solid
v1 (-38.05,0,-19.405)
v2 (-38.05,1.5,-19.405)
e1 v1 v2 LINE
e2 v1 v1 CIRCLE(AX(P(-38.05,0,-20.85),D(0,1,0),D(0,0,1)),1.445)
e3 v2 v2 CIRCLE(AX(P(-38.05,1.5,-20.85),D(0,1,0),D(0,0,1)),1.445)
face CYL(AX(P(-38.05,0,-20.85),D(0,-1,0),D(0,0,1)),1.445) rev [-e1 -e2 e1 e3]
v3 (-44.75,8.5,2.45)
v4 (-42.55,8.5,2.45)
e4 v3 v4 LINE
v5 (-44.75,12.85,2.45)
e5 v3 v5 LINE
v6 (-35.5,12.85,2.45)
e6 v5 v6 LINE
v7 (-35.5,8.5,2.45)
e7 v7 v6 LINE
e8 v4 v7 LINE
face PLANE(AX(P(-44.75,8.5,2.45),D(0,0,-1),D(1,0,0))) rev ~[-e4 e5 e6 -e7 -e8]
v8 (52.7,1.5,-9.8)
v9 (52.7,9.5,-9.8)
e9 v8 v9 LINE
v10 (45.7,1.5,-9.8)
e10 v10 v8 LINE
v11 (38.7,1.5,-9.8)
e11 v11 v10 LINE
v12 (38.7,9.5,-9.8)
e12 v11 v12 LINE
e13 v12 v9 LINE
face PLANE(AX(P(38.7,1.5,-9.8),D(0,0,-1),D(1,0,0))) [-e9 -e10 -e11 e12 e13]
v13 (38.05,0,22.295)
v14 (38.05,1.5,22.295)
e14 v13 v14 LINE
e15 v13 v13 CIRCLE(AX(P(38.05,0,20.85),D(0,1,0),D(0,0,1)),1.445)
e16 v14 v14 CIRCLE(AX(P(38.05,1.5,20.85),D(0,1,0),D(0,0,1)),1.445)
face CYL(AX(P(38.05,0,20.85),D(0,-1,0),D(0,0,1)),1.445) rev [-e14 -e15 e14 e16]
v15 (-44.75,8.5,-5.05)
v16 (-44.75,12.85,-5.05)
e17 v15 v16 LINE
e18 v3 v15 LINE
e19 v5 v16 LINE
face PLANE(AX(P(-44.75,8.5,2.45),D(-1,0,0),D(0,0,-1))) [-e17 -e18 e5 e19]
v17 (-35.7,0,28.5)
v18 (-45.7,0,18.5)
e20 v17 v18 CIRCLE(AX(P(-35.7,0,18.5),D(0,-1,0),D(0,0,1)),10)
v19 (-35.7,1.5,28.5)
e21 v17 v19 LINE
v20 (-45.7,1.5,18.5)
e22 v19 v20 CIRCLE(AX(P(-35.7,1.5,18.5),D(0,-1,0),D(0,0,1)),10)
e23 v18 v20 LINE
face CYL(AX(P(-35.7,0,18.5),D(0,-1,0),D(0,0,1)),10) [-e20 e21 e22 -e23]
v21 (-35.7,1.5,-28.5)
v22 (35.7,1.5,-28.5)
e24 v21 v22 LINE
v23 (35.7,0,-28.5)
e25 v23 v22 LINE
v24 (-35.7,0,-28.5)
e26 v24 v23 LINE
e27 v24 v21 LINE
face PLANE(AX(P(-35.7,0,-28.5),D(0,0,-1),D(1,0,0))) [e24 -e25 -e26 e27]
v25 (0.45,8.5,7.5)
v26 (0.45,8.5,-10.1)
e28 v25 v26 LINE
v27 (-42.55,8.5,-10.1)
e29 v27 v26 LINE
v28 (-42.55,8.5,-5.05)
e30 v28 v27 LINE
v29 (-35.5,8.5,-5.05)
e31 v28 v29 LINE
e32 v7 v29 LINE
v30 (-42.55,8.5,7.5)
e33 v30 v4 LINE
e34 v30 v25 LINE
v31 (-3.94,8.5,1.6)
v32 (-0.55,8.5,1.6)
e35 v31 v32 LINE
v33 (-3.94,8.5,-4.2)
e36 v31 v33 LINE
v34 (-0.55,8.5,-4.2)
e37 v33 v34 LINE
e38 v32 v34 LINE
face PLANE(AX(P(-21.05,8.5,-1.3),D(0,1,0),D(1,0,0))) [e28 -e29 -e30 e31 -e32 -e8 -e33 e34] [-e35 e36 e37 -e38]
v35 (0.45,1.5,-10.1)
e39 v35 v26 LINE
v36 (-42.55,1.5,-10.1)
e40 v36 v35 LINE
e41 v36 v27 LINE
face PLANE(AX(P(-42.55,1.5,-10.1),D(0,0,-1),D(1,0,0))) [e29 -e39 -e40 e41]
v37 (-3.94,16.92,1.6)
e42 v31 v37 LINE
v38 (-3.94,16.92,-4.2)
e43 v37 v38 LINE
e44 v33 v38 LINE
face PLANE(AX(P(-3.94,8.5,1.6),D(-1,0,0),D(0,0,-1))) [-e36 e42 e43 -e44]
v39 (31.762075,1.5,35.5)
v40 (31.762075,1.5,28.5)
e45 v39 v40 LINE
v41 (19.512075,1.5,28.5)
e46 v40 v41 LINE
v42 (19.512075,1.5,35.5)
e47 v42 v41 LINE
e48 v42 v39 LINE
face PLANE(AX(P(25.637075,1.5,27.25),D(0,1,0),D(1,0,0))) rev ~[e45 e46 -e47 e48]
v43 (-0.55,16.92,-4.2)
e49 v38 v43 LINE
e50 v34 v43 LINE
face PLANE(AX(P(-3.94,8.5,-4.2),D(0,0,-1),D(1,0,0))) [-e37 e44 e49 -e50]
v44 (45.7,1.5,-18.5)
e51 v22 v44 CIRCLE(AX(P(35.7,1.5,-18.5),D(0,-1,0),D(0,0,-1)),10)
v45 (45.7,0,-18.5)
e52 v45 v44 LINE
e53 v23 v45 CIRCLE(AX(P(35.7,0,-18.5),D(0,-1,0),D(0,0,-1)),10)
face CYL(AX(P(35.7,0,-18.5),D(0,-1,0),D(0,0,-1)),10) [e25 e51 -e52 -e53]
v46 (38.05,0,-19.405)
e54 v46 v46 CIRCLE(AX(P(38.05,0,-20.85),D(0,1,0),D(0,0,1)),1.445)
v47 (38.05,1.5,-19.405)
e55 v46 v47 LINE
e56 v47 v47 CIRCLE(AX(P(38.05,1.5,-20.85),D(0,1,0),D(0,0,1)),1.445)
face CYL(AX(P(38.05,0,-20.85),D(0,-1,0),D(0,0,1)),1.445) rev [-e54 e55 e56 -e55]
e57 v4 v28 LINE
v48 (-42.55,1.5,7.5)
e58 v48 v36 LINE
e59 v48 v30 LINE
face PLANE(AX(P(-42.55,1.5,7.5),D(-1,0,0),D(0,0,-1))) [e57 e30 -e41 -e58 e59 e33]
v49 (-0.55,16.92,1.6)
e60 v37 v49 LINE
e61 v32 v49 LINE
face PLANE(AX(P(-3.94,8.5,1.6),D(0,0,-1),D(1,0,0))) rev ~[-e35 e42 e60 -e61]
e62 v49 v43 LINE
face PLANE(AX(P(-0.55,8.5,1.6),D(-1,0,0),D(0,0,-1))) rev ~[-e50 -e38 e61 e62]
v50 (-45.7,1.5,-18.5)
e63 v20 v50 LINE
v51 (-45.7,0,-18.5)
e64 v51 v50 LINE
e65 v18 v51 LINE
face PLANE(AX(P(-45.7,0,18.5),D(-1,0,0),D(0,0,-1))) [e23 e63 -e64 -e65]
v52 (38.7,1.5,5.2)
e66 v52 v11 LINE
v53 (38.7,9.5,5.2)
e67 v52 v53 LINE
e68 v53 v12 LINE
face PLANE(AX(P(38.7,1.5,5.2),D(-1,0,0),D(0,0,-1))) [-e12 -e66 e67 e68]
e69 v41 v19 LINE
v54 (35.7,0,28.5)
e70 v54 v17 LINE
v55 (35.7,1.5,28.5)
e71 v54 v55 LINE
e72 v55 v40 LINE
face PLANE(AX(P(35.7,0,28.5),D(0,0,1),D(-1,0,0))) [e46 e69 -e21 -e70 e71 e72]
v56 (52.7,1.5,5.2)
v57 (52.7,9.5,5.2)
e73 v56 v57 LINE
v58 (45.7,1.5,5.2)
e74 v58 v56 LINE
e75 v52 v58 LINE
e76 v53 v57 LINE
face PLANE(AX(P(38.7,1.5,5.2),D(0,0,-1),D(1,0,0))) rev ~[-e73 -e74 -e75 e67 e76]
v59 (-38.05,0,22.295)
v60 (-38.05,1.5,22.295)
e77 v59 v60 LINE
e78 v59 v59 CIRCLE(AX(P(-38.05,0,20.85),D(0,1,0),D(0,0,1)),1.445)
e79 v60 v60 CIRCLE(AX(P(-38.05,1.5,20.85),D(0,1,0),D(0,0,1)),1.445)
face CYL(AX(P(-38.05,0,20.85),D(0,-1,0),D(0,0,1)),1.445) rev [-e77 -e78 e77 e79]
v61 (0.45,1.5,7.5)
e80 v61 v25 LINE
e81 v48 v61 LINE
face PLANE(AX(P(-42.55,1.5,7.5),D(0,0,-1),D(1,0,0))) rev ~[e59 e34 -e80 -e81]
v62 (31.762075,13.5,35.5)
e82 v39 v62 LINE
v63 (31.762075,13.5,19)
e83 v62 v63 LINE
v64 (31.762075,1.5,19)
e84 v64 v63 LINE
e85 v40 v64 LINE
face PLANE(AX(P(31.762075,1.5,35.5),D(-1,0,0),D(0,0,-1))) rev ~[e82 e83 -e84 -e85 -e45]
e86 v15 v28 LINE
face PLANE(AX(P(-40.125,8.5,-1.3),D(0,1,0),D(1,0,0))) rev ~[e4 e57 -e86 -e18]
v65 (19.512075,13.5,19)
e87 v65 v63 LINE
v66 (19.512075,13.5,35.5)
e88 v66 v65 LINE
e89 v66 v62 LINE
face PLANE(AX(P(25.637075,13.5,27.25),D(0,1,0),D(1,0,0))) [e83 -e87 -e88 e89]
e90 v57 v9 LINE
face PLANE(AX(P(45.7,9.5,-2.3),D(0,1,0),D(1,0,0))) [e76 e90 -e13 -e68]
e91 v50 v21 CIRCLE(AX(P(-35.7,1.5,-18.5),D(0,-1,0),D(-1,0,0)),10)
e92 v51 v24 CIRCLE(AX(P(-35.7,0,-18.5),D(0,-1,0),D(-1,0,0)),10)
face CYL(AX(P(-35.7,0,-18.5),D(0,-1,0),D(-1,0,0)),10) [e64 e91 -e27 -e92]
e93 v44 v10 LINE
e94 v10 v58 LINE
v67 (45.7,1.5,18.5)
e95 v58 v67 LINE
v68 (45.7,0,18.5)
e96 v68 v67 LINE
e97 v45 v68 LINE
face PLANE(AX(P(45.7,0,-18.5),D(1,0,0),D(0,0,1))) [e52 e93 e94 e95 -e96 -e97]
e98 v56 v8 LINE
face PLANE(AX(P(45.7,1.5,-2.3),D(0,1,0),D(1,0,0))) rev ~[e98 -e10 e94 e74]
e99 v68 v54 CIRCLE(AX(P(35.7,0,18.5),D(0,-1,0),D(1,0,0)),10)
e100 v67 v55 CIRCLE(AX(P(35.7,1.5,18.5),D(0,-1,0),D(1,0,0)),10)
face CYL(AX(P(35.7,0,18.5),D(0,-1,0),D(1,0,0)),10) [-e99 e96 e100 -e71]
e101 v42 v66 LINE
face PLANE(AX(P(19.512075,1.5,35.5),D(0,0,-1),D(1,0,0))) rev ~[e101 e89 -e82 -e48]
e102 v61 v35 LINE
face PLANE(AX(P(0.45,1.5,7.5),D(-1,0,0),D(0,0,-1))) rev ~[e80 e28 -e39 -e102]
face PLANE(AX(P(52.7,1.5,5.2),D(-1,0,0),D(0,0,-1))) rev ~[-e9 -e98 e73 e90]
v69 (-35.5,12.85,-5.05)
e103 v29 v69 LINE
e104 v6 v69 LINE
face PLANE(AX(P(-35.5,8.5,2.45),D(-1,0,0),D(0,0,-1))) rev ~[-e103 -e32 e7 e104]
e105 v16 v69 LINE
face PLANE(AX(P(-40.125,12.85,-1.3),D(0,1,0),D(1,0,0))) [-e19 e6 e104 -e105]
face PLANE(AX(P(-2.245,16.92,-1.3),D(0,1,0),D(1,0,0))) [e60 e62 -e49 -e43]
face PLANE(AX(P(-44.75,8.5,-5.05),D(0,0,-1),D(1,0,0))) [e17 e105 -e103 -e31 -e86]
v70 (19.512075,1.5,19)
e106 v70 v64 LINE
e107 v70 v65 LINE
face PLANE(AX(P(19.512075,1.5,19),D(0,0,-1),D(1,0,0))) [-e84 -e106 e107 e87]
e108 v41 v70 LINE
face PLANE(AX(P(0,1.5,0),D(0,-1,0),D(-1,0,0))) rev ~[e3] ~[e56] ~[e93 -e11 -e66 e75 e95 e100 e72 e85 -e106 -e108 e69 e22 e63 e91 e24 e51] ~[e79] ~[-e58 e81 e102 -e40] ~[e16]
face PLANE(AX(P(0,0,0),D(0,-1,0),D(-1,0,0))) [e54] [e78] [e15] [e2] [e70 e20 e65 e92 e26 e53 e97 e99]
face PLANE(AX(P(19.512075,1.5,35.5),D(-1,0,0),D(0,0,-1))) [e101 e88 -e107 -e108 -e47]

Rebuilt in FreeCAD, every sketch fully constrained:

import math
import FreeCAD as App
import Part
import Sketcher
from FreeCAD import Vector
Q = App.Units.Quantity

doc = App.newDocument("Part")
body = doc.addObject("PartDesign::Body", "Body")

# Sketch on XZ plane
sketch1 = body.newObject("Sketcher::SketchObject", "Sketch")
sketch1.AttachmentSupport = (doc.getObject("XZ_Plane"), [""])
sketch1.MapMode = "FlatFace"
sketch1.addGeometry(Part.LineSegment(Vector(35.7, -28.5, 0), Vector(-35.7, -28.5, 0)), False)
sketch1.addGeometry(Part.ArcOfCircle(Part.Circle(Vector(-35.7, -18.5, 0), Vector(0, 0, 1), 10), math.radians(180), math.radians(270)), False)
sketch1.addGeometry(Part.LineSegment(Vector(-45.7, -18.5, 0), Vector(-45.7, 18.5, 0)), False)
sketch1.addGeometry(Part.ArcOfCircle(Part.Circle(Vector(-35.7, 18.5, 0), Vector(0, 0, 1), 10), math.radians(90), math.radians(180)), False)
sketch1.addGeometry(Part.LineSegment(Vector(-35.7, 28.5, 0), Vector(35.7, 28.5, 0)), False)
sketch1.addGeometry(Part.ArcOfCircle(Part.Circle(Vector(35.7, 18.5, 0), Vector(0, 0, 1), 10), math.radians(0), math.radians(90)), False)
sketch1.addGeometry(Part.LineSegment(Vector(45.7, 18.5, 0), Vector(45.7, -18.5, 0)), False)
sketch1.addGeometry(Part.ArcOfCircle(Part.Circle(Vector(35.7, -18.5, 0), Vector(0, 0, 1), 10), math.radians(-90), math.radians(0)), False)
sketch1.addGeometry(Part.Circle(Vector(38.05, 20.85, 0), Vector(0, 0, 1), 1.445), False)
sketch1.addGeometry(Part.Circle(Vector(-38.05, 20.85, 0), Vector(0, 0, 1), 1.445), False)
sketch1.addGeometry(Part.Circle(Vector(38.05, -20.85, 0), Vector(0, 0, 1), 1.445), False)
sketch1.addGeometry(Part.Circle(Vector(-38.05, -20.85, 0), Vector(0, 0, 1), 1.445), False)
sketch1.addConstraint(Sketcher.Constraint("Tangent", 0, 2, 1, 2))
sketch1.addConstraint(Sketcher.Constraint("Tangent", 1, 1, 2, 1))
sketch1.addConstraint(Sketcher.Constraint("Tangent", 2, 2, 3, 2))
sketch1.addConstraint(Sketcher.Constraint("Tangent", 3, 1, 4, 1))
sketch1.addConstraint(Sketcher.Constraint("Tangent", 4, 2, 5, 2))
sketch1.addConstraint(Sketcher.Constraint("Tangent", 5, 1, 6, 1))
sketch1.addConstraint(Sketcher.Constraint("Tangent", 6, 2, 7, 2))
sketch1.addConstraint(Sketcher.Constraint("Tangent", 7, 1, 0, 1))
sketch1.addConstraint(Sketcher.Constraint("Horizontal", 0))
sketch1.addConstraint(Sketcher.Constraint("Vertical", 2))
sketch1.addConstraint(Sketcher.Constraint("Horizontal", 4))
sketch1.addConstraint(Sketcher.Constraint("Vertical", 6))
sketch1.addConstraint(Sketcher.Constraint("Equal", 1, 3))
sketch1.addConstraint(Sketcher.Constraint("Equal", 3, 5))
sketch1.addConstraint(Sketcher.Constraint("Equal", 5, 7))
sketch1.addConstraint(Sketcher.Constraint("Equal", 8, 9))
sketch1.addConstraint(Sketcher.Constraint("Equal", 9, 10))
sketch1.addConstraint(Sketcher.Constraint("Equal", 10, 11))
sketch1.addConstraint(Sketcher.Constraint("Symmetric", 1, 3, 5, 3, -1, 1))
sketch1.addConstraint(Sketcher.Constraint("Symmetric", 9, 3, 10, 3, -1, 1))
sketch1.addConstraint(Sketcher.Constraint("Symmetric", 8, 3, 11, 3, -1, 1))
sketch1.addConstraint(Sketcher.Constraint("Symmetric", 8, 3, 9, 3, -2))
sketch1.addConstraint(Sketcher.Constraint("Radius", 1, Q("10 mm")))
sketch1.addConstraint(Sketcher.Constraint("Diameter", 8, Q("2.89 mm")))
sketch1.addConstraint(Sketcher.Constraint("DistanceY", 2, 1, 2, 2, Q("37 mm")))
sketch1.addConstraint(Sketcher.Constraint("DistanceX", 0, 2, 0, 1, Q("71.4 mm")))
sketch1.addConstraint(Sketcher.Constraint("DistanceX", 9, 3, 8, 3, Q("76.1 mm")))
sketch1.addConstraint(Sketcher.Constraint("DistanceY", 10, 3, 8, 3, Q("41.7 mm")))
pad1 = body.newObject("PartDesign::Pad", "Pad")
pad1.Profile = sketch1
pad1.Length = 1.5
pad1.Reversed = True

# Sketch on XZ plane
sketch2 = body.newObject("Sketcher::SketchObject", "Sketch001")
sketch2.AttachmentSupport = (doc.getObject("XZ_Plane"), [""])
sketch2.MapMode = "FlatFace"
sketch2.AttachmentOffset = App.Placement(Vector(0, 0, -1.5), App.Rotation())
sketch2.addGeometry(Part.LineSegment(Vector(-42.55, -10.1, 0), Vector(-42.55, 7.5, 0)), False)
sketch2.addGeometry(Part.LineSegment(Vector(-42.55, 7.5, 0), Vector(0.45, 7.5, 0)), False)
sketch2.addGeometry(Part.LineSegment(Vector(0.45, 7.5, 0), Vector(0.45, -10.1, 0)), False)
sketch2.addGeometry(Part.LineSegment(Vector(0.45, -10.1, 0), Vector(-42.55, -10.1, 0)), False)
sketch2.addConstraint(Sketcher.Constraint("Coincident", 0, 2, 1, 1))
sketch2.addConstraint(Sketcher.Constraint("Coincident", 1, 2, 2, 1))
sketch2.addConstraint(Sketcher.Constraint("Coincident", 2, 2, 3, 1))
sketch2.addConstraint(Sketcher.Constraint("Coincident", 3, 2, 0, 1))
sketch2.addConstraint(Sketcher.Constraint("Vertical", 0))
sketch2.addConstraint(Sketcher.Constraint("Horizontal", 1))
sketch2.addConstraint(Sketcher.Constraint("Vertical", 2))
sketch2.addConstraint(Sketcher.Constraint("Horizontal", 3))
sketch2.addConstraint(Sketcher.Constraint("DistanceX", 1, 1, 1, 2, Q("43 mm")))
sketch2.addConstraint(Sketcher.Constraint("DistanceY", 0, 1, 0, 2, Q("17.6 mm")))
sketch2.addConstraint(Sketcher.Constraint("DistanceY", -1, 1, 0, 2, Q("7.5 mm")))
sketch2.addConstraint(Sketcher.Constraint("DistanceX", 0, 2, -1, 1, Q("42.55 mm")))
pad2 = body.newObject("PartDesign::Pad", "Pad001")
pad2.Profile = sketch2
pad2.Length = 7
pad2.Reversed = True

# Sketch on XZ plane
sketch3 = body.newObject("Sketcher::SketchObject", "Sketch002")
sketch3.AttachmentSupport = (doc.getObject("XZ_Plane"), [""])
sketch3.MapMode = "FlatFace"
sketch3.AttachmentOffset = App.Placement(Vector(0, 0, -8.5), App.Rotation())
sketch3.addGeometry(Part.LineSegment(Vector(-44.75, -5.05, 0), Vector(-44.75, 2.45, 0)), False)
sketch3.addGeometry(Part.LineSegment(Vector(-44.75, 2.45, 0), Vector(-35.5, 2.45, 0)), False)
sketch3.addGeometry(Part.LineSegment(Vector(-35.5, 2.45, 0), Vector(-35.5, -5.05, 0)), False)
sketch3.addGeometry(Part.LineSegment(Vector(-35.5, -5.05, 0), Vector(-44.75, -5.05, 0)), False)
sketch3.addConstraint(Sketcher.Constraint("Coincident", 0, 2, 1, 1))
sketch3.addConstraint(Sketcher.Constraint("Coincident", 1, 2, 2, 1))
sketch3.addConstraint(Sketcher.Constraint("Coincident", 2, 2, 3, 1))
sketch3.addConstraint(Sketcher.Constraint("Coincident", 3, 2, 0, 1))
sketch3.addConstraint(Sketcher.Constraint("Vertical", 0))
sketch3.addConstraint(Sketcher.Constraint("Horizontal", 1))
sketch3.addConstraint(Sketcher.Constraint("Vertical", 2))
sketch3.addConstraint(Sketcher.Constraint("Horizontal", 3))
sketch3.addConstraint(Sketcher.Constraint("DistanceY", 0, 1, 0, 2, Q("7.5 mm")))
sketch3.addConstraint(Sketcher.Constraint("DistanceX", 1, 1, 1, 2, Q("9.25 mm")))
sketch3.addConstraint(Sketcher.Constraint("DistanceX", 1, 2, -1, 1, Q("35.5 mm")))
sketch3.addConstraint(Sketcher.Constraint("DistanceY", -1, 1, 0, 2, Q("2.45 mm")))
pad3 = body.newObject("PartDesign::Pad", "Pad002")
pad3.Profile = sketch3
pad3.Length = 4.35
pad3.Reversed = True

# Sketch on XZ plane
sketch4 = body.newObject("Sketcher::SketchObject", "Sketch003")
sketch4.AttachmentSupport = (doc.getObject("XZ_Plane"), [""])
sketch4.MapMode = "FlatFace"
sketch4.AttachmentOffset = App.Placement(Vector(0, 0, -8.5), App.Rotation())
sketch4.addGeometry(Part.LineSegment(Vector(-3.94, -4.2, 0), Vector(-3.94, 1.6, 0)), False)
sketch4.addGeometry(Part.LineSegment(Vector(-3.94, 1.6, 0), Vector(-0.55, 1.6, 0)), False)
sketch4.addGeometry(Part.LineSegment(Vector(-0.55, 1.6, 0), Vector(-0.55, -4.2, 0)), False)
sketch4.addGeometry(Part.LineSegment(Vector(-0.55, -4.2, 0), Vector(-3.94, -4.2, 0)), False)
sketch4.addConstraint(Sketcher.Constraint("Coincident", 0, 2, 1, 1))
sketch4.addConstraint(Sketcher.Constraint("Coincident", 1, 2, 2, 1))
sketch4.addConstraint(Sketcher.Constraint("Coincident", 2, 2, 3, 1))
sketch4.addConstraint(Sketcher.Constraint("Coincident", 3, 2, 0, 1))
sketch4.addConstraint(Sketcher.Constraint("Vertical", 0))
sketch4.addConstraint(Sketcher.Constraint("Horizontal", 1))
sketch4.addConstraint(Sketcher.Constraint("Vertical", 2))
sketch4.addConstraint(Sketcher.Constraint("Horizontal", 3))
sketch4.addConstraint(Sketcher.Constraint("DistanceY", 0, 1, 0, 2, Q("5.8 mm")))
sketch4.addConstraint(Sketcher.Constraint("DistanceX", 1, 1, 1, 2, Q("3.39 mm")))
sketch4.addConstraint(Sketcher.Constraint("DistanceY", -1, 1, 0, 2, Q("1.6 mm")))
sketch4.addConstraint(Sketcher.Constraint("DistanceX", 0, 2, -1, 1, Q("3.94 mm")))
pad4 = body.newObject("PartDesign::Pad", "Pad003")
pad4.Profile = sketch4
pad4.Length = 8.42
pad4.Reversed = True

# Sketch on XZ plane
sketch5 = body.newObject("Sketcher::SketchObject", "Sketch004")
sketch5.AttachmentSupport = (doc.getObject("XZ_Plane"), [""])
sketch5.MapMode = "FlatFace"
sketch5.AttachmentOffset = App.Placement(Vector(0, 0, -1.5), App.Rotation())
sketch5.addGeometry(Part.LineSegment(Vector(38.7, -9.8, 0), Vector(38.7, 5.2, 0)), False)
sketch5.addGeometry(Part.LineSegment(Vector(38.7, 5.2, 0), Vector(52.7, 5.2, 0)), False)
sketch5.addGeometry(Part.LineSegment(Vector(52.7, 5.2, 0), Vector(52.7, -9.8, 0)), False)
sketch5.addGeometry(Part.LineSegment(Vector(52.7, -9.8, 0), Vector(38.7, -9.8, 0)), False)
sketch5.addConstraint(Sketcher.Constraint("Coincident", 0, 2, 1, 1))
sketch5.addConstraint(Sketcher.Constraint("Coincident", 1, 2, 2, 1))
sketch5.addConstraint(Sketcher.Constraint("Coincident", 2, 2, 3, 1))
sketch5.addConstraint(Sketcher.Constraint("Coincident", 3, 2, 0, 1))
sketch5.addConstraint(Sketcher.Constraint("Vertical", 0))
sketch5.addConstraint(Sketcher.Constraint("Horizontal", 1))
sketch5.addConstraint(Sketcher.Constraint("Vertical", 2))
sketch5.addConstraint(Sketcher.Constraint("Horizontal", 3))
sketch5.addConstraint(Sketcher.Constraint("DistanceX", 1, 1, 1, 2, Q("14 mm")))
sketch5.addConstraint(Sketcher.Constraint("DistanceY", 0, 1, 0, 2, Q("15 mm")))
sketch5.addConstraint(Sketcher.Constraint("DistanceX", -1, 1, 0, 2, Q("38.7 mm")))
sketch5.addConstraint(Sketcher.Constraint("DistanceY", -1, 1, 0, 2, Q("5.2 mm")))
pad5 = body.newObject("PartDesign::Pad", "Pad004")
pad5.Profile = sketch5
pad5.Length = 8
pad5.Reversed = True

# Sketch on XZ plane
sketch6 = body.newObject("Sketcher::SketchObject", "Sketch005")
sketch6.AttachmentSupport = (doc.getObject("XZ_Plane"), [""])
sketch6.MapMode = "FlatFace"
sketch6.AttachmentOffset = App.Placement(Vector(0, 0, -1.5), App.Rotation())
sketch6.addGeometry(Part.LineSegment(Vector(19.512075, 19, 0), Vector(19.512075, 35.5, 0)), False)
sketch6.addGeometry(Part.LineSegment(Vector(19.512075, 35.5, 0), Vector(31.762075, 35.5, 0)), False)
sketch6.addGeometry(Part.LineSegment(Vector(31.762075, 35.5, 0), Vector(31.762075, 19, 0)), False)
sketch6.addGeometry(Part.LineSegment(Vector(31.762075, 19, 0), Vector(19.512075, 19, 0)), False)
sketch6.addConstraint(Sketcher.Constraint("Coincident", 0, 2, 1, 1))
sketch6.addConstraint(Sketcher.Constraint("Coincident", 1, 2, 2, 1))
sketch6.addConstraint(Sketcher.Constraint("Coincident", 2, 2, 3, 1))
sketch6.addConstraint(Sketcher.Constraint("Coincident", 3, 2, 0, 1))
sketch6.addConstraint(Sketcher.Constraint("Vertical", 0))
sketch6.addConstraint(Sketcher.Constraint("Horizontal", 1))
sketch6.addConstraint(Sketcher.Constraint("Vertical", 2))
sketch6.addConstraint(Sketcher.Constraint("Horizontal", 3))
sketch6.addConstraint(Sketcher.Constraint("DistanceY", 0, 1, 0, 2, Q("16.5 mm")))
sketch6.addConstraint(Sketcher.Constraint("DistanceY", -1, 1, 2, 2, Q("19 mm")))
sketch6.addConstraint(Sketcher.Constraint("DistanceX", 1, 1, 1, 2, Q("12.25 mm")))
sketch6.addConstraint(Sketcher.Constraint("DistanceX", -1, 1, 0, 2, Q("19.512075 mm")))
pad6 = body.newObject("PartDesign::Pad", "Pad005")
pad6.Profile = sketch6
pad6.Length = 12
pad6.Reversed = True

doc.recompute()
